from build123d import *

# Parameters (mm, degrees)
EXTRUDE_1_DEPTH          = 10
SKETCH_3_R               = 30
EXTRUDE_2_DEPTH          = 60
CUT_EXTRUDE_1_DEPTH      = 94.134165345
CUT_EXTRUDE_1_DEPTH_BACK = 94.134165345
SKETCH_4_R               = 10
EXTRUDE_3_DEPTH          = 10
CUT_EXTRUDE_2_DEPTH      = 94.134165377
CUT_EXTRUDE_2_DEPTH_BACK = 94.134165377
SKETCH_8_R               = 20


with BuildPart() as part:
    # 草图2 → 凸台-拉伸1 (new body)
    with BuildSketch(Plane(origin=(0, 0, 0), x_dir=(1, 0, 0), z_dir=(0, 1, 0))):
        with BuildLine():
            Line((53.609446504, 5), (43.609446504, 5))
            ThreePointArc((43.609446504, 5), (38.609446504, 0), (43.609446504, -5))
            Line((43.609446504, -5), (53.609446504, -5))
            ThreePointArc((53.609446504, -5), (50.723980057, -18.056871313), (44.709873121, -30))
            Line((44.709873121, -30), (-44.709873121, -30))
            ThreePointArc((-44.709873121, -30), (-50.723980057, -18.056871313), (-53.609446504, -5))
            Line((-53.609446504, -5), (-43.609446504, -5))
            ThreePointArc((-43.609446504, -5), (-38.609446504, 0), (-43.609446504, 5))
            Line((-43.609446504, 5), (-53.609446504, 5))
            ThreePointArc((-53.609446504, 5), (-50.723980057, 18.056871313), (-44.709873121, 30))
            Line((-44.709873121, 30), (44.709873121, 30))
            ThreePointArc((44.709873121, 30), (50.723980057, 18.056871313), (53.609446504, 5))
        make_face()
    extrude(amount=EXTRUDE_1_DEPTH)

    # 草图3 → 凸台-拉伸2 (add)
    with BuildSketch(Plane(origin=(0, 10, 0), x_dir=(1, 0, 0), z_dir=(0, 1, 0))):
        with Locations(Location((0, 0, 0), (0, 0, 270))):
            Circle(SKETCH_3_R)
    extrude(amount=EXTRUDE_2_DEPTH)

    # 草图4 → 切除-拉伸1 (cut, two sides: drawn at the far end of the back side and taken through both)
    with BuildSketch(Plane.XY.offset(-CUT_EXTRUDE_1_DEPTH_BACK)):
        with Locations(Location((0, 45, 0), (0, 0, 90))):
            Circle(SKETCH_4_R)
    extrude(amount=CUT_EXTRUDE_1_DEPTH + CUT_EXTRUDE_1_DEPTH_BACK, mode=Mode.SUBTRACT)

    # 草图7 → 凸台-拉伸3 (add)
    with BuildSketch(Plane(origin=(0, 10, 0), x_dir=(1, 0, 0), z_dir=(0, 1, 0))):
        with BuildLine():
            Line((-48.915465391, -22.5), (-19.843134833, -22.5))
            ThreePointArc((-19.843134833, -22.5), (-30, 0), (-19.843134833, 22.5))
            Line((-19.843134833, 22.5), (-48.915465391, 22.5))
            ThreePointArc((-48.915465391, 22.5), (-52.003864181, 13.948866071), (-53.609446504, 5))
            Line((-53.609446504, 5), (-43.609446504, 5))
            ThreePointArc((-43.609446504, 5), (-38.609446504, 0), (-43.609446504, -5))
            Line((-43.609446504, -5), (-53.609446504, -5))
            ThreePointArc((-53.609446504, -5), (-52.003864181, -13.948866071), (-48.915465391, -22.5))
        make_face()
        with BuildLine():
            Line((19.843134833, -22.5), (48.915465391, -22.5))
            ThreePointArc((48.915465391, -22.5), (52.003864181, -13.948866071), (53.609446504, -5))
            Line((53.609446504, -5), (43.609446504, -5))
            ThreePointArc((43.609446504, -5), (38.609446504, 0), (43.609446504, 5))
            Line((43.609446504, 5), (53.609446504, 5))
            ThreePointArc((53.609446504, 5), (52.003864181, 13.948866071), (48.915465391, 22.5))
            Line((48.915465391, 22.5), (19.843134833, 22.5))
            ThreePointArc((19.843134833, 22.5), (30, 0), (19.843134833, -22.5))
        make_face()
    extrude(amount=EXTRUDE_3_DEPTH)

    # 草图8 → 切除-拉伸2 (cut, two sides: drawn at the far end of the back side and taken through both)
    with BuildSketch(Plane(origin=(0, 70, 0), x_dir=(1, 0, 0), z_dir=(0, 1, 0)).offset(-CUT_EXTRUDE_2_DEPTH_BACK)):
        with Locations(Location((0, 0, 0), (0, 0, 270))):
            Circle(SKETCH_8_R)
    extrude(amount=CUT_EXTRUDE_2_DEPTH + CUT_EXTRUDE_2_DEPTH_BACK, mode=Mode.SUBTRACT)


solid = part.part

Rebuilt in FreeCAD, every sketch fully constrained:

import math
import FreeCAD as App
import Part
import Sketcher

V = App.Vector
Q = App.Units.Quantity

doc = App.newDocument("Part")
params = doc.addObject("Spreadsheet::Sheet", "Params")
for row, (alias, value) in enumerate([
    ("sketch1_radius", "5 mm"),
    ("sketch1_width", "10 mm"),
    ("pad1_length", "10 mm"),
    ("sketch2_diameter", "60 mm"),
    ("pad2_length", "60 mm"),
    ("sketch3_diameter", "20 mm"),
    ("sketch4_radius", "30 mm"),
    ("sketch4_radius2", "5 mm"),
    ("sketch4_width", "10 mm"),
    ("pad3_length", "10 mm"),
    ("sketch5_diameter", "40 mm"),
], start=1):
    params.set(f"A{row}", alias)
    params.set(f"B{row}", "=" + value)
    params.setAlias(f"B{row}", alias)

body = doc.addObject("PartDesign::Body", "Body")

# Sketch on XZ plane
sketch1 = body.newObject("Sketcher::SketchObject", "Sketch")
sketch1.AttachmentSupport = (doc.getObject("XZ_Plane"), [""])
sketch1.MapMode = "FlatFace"
sketch1.addGeometry([
    Part.LineSegment(V(44, -5, 0), V(54, -5, 0)),  # 0
    Part.ArcOfCircle(Part.Circle(V(0, 0, 0), V(0, 0, 1), 54), math.radians(-34), math.radians(-5)),  # 1
    Part.LineSegment(V(45, -30, 0), V(-45, -30, 0)),  # 2
    Part.ArcOfCircle(Part.Circle(V(0, 0, 0), V(0, 0, 1), 54), math.radians(-175), math.radians(-146)),  # 3
    Part.LineSegment(V(-54, -5, 0), V(-44, -5, 0)),  # 4
    Part.ArcOfCircle(Part.Circle(V(-44, 0, 0), V(0, 0, 1), 5), math.radians(-90), math.radians(90)),  # 5
    Part.LineSegment(V(-44, 5, 0), V(-54, 5, 0)),  # 6
    Part.ArcOfCircle(Part.Circle(V(0, 0, 0), V(0, 0, 1), 54), math.radians(146), math.radians(175)),  # 7
    Part.LineSegment(V(-45, 30, 0), V(45, 30, 0)),  # 8
    Part.ArcOfCircle(Part.Circle(V(0, 0, 0), V(0, 0, 1), 54), math.radians(5), math.radians(34)),  # 9
    Part.LineSegment(V(54, 5, 0), V(44, 5, 0)),  # 10
    Part.ArcOfCircle(Part.Circle(V(44, 0, 0), V(0, 0, 1), 5), math.radians(90), math.radians(270)),  # 11
], False)
sketch1.addConstraint([
    Sketcher.Constraint("Coincident", 0, 2, 1, 2),
    Sketcher.Constraint("Coincident", 1, 1, 2, 1),
    Sketcher.Constraint("Coincident", 2, 2, 3, 2),
    Sketcher.Constraint("Coincident", 3, 1, 4, 1),
    Sketcher.Constraint("Tangent", 4, 2, 5, 1),
    Sketcher.Constraint("Tangent", 5, 2, 6, 1),
    Sketcher.Constraint("Coincident", 6, 2, 7, 2),
    Sketcher.Constraint("Coincident", 7, 1, 8, 1),
    Sketcher.Constraint("Coincident", 8, 2, 9, 2),
    Sketcher.Constraint("Coincident", 9, 1, 10, 1),
    Sketcher.Constraint("Tangent", 10, 2, 11, 1),
    Sketcher.Constraint("Tangent", 11, 2, 0, 1),
    Sketcher.Constraint("Horizontal", 0),
    Sketcher.Constraint("Horizontal", 2),
    Sketcher.Constraint("Horizontal", 4),
    Sketcher.Constraint("Horizontal", 6),
    Sketcher.Constraint("Horizontal", 8),
    Sketcher.Constraint("Horizontal", 10),
    Sketcher.Constraint("Coincident", 1, 3, -1, 1),
    Sketcher.Constraint("Coincident", 3, 3, -1, 1),
    Sketcher.Constraint("Coincident", 7, 3, -1, 1),
    Sketcher.Constraint("Coincident", 9, 3, -1, 1),
    Sketcher.Constraint("Equal", 1, 3),
    Sketcher.Constraint("Equal", 3, 7),
    Sketcher.Constraint("Equal", 7, 9),
    Sketcher.Constraint("Equal", 5, 11),
    Sketcher.Constraint("Symmetric", 5, 3, 11, 3, -1, 1),
    Sketcher.Constraint("PointOnObject", 5, 3, -1),
    Sketcher.Constraint("Vertical", 2, 2, 7, 1),
    Sketcher.Constraint("Radius", 5, Q("5 mm")),
    Sketcher.Constraint("DistanceX", 0, 1, 0, 2, Q("10 mm")),
    Sketcher.Constraint("DistanceY", 1, 1, -1, 1, Q("30 mm")),
    Sketcher.Constraint("Radius", 1, Q("53.84211 mm")),
])
sketch1.setExpression("Constraints[29]", "Params.sketch1_radius")
sketch1.setExpression("Constraints[30]", "Params.sketch1_width")
pad1 = body.newObject("PartDesign::Pad", "Pad")
pad1.Profile = sketch1
pad1.setExpression("Length", "Params.pad1_length")
pad1.Reversed = True

# Sketch on XZ plane
sketch2 = body.newObject("Sketcher::SketchObject", "Sketch001")
sketch2.AttachmentSupport = (doc.getObject("XZ_Plane"), [""])
sketch2.MapMode = "FlatFace"
sketch2.AttachmentOffset = App.Placement(V(0, 0, -10), App.Rotation())
sketch2.addGeometry(Part.Circle(V(0, 0, 0), V(0, 0, 1), 30), False)
sketch2.addConstraint([
    Sketcher.Constraint("Coincident", 0, 3, -1, 1),
    Sketcher.Constraint("Diameter", 0, Q("60 mm")),
])
sketch2.setExpression("Constraints[1]", "Params.sketch2_diameter")
pad2 = body.newObject("PartDesign::Pad", "Pad001")
pad2.Profile = sketch2
pad2.setExpression("Length", "Params.pad2_length")
pad2.Reversed = True

# Sketch on XY plane
sketch3 = body.newObject("Sketcher::SketchObject", "Sketch002")
sketch3.AttachmentSupport = (doc.getObject("XY_Plane"), [""])
sketch3.MapMode = "FlatFace"
sketch3.addGeometry(Part.Circle(V(0, 45, 0), V(0, 0, 1), 10), False)
sketch3.addConstraint([
    Sketcher.Constraint("PointOnObject", 0, 3, -2),
    Sketcher.Constraint("Diameter", 0, Q("20 mm")),
    Sketcher.Constraint("DistanceY", -1, 1, 0, 3, Q("45 mm")),
])
sketch3.setExpression("Constraints[1]", "Params.sketch3_diameter")
pocket1 = body.newObject("PartDesign::Pocket", "Pocket")
pocket1.Profile = sketch3
pocket1.Type = "ThroughAll"
pocket1.Midplane = True

# Sketch on XZ plane
sketch4 = body.newObject("Sketcher::SketchObject", "Sketch003")
sketch4.AttachmentSupport = (doc.getObject("XZ_Plane"), [""])
sketch4.MapMode = "FlatFace"
sketch4.AttachmentOffset = App.Placement(V(0, 0, -10), App.Rotation())
sketch4.addGeometry([
    Part.LineSegment(V(-49, 22, 0), V(-20, 22, 0)),  # 0
    Part.ArcOfCircle(Part.Circle(V(0, 0, 0), V(0, 0, 1), 30), math.radians(131), math.radians(229)),  # 1
    Part.LineSegment(V(-20, -22, 0), V(-49, -22, 0)),  # 2
    Part.ArcOfCircle(Part.Circle(V(0, 0, 0), V(0, 0, 1), 54), math.radians(-174.67), math.radians(-155.3)),  # 3
    Part.LineSegment(V(-54, -5, 0), V(-44, -5, 0)),  # 4
    Part.ArcOfCircle(Part.Circle(V(-44, 0, 0), V(0, 0, 1), 5), math.radians(-90), math.radians(90)),  # 5
    Part.LineSegment(V(-44, 5, 0), V(-54, 5, 0)),  # 6
    Part.ArcOfCircle(Part.Circle(V(0, 0, 0), V(0, 0, 1), 54), math.radians(155.3), math.radians(174.67)),  # 7
    Part.LineSegment(V(20, 22, 0), V(49, 22, 0)),  # 8
    Part.ArcOfCircle(Part.Circle(V(0, 0, 0), V(0, 0, 1), 54), math.radians(5.33), math.radians(24.7)),  # 9
    Part.LineSegment(V(54, 5, 0), V(44, 5, 0)),  # 10
    Part.ArcOfCircle(Part.Circle(V(44, 0, 0), V(0, 0, 1), 5), math.radians(90), math.radians(270)),  # 11
    Part.LineSegment(V(44, -5, 0), V(54, -5, 0)),  # 12
    Part.ArcOfCircle(Part.Circle(V(0, 0, 0), V(0, 0, 1), 54), math.radians(-24.7), math.radians(-5.33)),  # 13
    Part.LineSegment(V(49, -22, 0), V(20, -22, 0)),  # 14
    Part.ArcOfCircle(Part.Circle(V(0, 0, 0), V(0, 0, 1), 30), math.radians(-49), math.radians(49)),  # 15
], False)
sketch4.addConstraint([
    Sketcher.Constraint("Coincident", 0, 2, 1, 1),
    Sketcher.Constraint("Coincident", 1, 2, 2, 1),
    Sketcher.Constraint("Coincident", 2, 2, 3, 2),
    Sketcher.Constraint("Coincident", 3, 1, 4, 1),
    Sketcher.Constraint("Tangent", 4, 2, 5, 1),
    Sketcher.Constraint("Tangent", 5, 2, 6, 1),
    Sketcher.Constraint("Coincident", 6, 2, 7, 2),
    Sketcher.Constraint("Coincident", 7, 1, 0, 1),
    Sketcher.Constraint("Coincident", 8, 2, 9, 2),
    Sketcher.Constraint("Coincident", 9, 1, 10, 1),
    Sketcher.Constraint("Tangent", 10, 2, 11, 1),
    Sketcher.Constraint("Tangent", 11, 2, 12, 1),
    Sketcher.Constraint("Coincident", 12, 2, 13, 2),
    Sketcher.Constraint("Coincident", 13, 1, 14, 1),
    Sketcher.Constraint("Coincident", 14, 2, 15, 1),
    Sketcher.Constraint("Coincident", 15, 2, 8, 1),
    Sketcher.Constraint("Horizontal", 0),
    Sketcher.Constraint("Horizontal", 2),
    Sketcher.Constraint("Horizontal", 4),
    Sketcher.Constraint("Horizontal", 6),
    Sketcher.Constraint("Horizontal", 8),
    Sketcher.Constraint("Horizontal", 10),
    Sketcher.Constraint("Horizontal", 12),
    Sketcher.Constraint("Horizontal", 14),
    Sketcher.Constraint("Coincident", 1, 3, -1, 1),
    Sketcher.Constraint("Coincident", 3, 3, -1, 1),
    Sketcher.Constraint("Coincident", 7, 3, -1, 1),
    Sketcher.Constraint("Coincident", 9, 3, -1, 1),
    Sketcher.Constraint("Coincident", 13, 3, -1, 1),
    Sketcher.Constraint("Coincident", 15, 3, -1, 1),
    Sketcher.Constraint("Equal", 3, 7),
    Sketcher.Constraint("Equal", 7, 9),
    Sketcher.Constraint("Equal", 5, 11),
    Sketcher.Constraint("Equal", 9, 13),
    Sketcher.Constraint("Equal", 1, 15),
    Sketcher.Constraint("Symmetric", 5, 3, 11, 3, -1, 1),
    Sketcher.Constraint("PointOnObject", 5, 3, -1),
    Sketcher.Constraint("Horizontal", 7, 1, 8, 2),
    Sketcher.Constraint("Horizontal", 2, 2, 13, 1),
    Sketcher.Constraint("Vertical", 0, 2, 1, 2),
    Sketcher.Constraint("Radius", 1, Q("30 mm")),
    Sketcher.Constraint("Radius", 5, Q("5 mm")),
    Sketcher.Constraint("DistanceX", 4, 1, 4, 2, Q("10 mm")),
    Sketcher.Constraint("DistanceY", 2, 2, 0, 2, Q("45 mm")),
    Sketcher.Constraint("Radius", 3, Q("53.84211 mm")),
])
sketch4.setExpression("Constraints[40]", "Params.sketch4_radius")
sketch4.setExpression("Constraints[41]", "Params.sketch4_radius2")
sketch4.setExpression("Constraints[42]", "Params.sketch4_width")
pad3 = body.newObject("PartDesign::Pad", "Pad002")
pad3.Profile = sketch4
pad3.setExpression("Length", "Params.pad3_length")
pad3.Reversed = True

# Sketch on XZ plane
sketch5 = body.newObject("Sketcher::SketchObject", "Sketch004")
sketch5.AttachmentSupport = (doc.getObject("XZ_Plane"), [""])
sketch5.MapMode = "FlatFace"
sketch5.AttachmentOffset = App.Placement(V(0, 0, -70), App.Rotation())
sketch5.addGeometry(Part.Circle(V(0, 0, 0), V(0, 0, 1), 20), False)
sketch5.addConstraint([
    Sketcher.Constraint("Coincident", 0, 3, -1, 1),
    Sketcher.Constraint("Diameter", 0, Q("40 mm")),
])
sketch5.setExpression("Constraints[1]", "Params.sketch5_diameter")
pocket2 = body.newObject("PartDesign::Pocket", "Pocket001")
pocket2.Profile = sketch5
pocket2.Type = "ThroughAll"
pocket2.Midplane = True

doc.recompute()
